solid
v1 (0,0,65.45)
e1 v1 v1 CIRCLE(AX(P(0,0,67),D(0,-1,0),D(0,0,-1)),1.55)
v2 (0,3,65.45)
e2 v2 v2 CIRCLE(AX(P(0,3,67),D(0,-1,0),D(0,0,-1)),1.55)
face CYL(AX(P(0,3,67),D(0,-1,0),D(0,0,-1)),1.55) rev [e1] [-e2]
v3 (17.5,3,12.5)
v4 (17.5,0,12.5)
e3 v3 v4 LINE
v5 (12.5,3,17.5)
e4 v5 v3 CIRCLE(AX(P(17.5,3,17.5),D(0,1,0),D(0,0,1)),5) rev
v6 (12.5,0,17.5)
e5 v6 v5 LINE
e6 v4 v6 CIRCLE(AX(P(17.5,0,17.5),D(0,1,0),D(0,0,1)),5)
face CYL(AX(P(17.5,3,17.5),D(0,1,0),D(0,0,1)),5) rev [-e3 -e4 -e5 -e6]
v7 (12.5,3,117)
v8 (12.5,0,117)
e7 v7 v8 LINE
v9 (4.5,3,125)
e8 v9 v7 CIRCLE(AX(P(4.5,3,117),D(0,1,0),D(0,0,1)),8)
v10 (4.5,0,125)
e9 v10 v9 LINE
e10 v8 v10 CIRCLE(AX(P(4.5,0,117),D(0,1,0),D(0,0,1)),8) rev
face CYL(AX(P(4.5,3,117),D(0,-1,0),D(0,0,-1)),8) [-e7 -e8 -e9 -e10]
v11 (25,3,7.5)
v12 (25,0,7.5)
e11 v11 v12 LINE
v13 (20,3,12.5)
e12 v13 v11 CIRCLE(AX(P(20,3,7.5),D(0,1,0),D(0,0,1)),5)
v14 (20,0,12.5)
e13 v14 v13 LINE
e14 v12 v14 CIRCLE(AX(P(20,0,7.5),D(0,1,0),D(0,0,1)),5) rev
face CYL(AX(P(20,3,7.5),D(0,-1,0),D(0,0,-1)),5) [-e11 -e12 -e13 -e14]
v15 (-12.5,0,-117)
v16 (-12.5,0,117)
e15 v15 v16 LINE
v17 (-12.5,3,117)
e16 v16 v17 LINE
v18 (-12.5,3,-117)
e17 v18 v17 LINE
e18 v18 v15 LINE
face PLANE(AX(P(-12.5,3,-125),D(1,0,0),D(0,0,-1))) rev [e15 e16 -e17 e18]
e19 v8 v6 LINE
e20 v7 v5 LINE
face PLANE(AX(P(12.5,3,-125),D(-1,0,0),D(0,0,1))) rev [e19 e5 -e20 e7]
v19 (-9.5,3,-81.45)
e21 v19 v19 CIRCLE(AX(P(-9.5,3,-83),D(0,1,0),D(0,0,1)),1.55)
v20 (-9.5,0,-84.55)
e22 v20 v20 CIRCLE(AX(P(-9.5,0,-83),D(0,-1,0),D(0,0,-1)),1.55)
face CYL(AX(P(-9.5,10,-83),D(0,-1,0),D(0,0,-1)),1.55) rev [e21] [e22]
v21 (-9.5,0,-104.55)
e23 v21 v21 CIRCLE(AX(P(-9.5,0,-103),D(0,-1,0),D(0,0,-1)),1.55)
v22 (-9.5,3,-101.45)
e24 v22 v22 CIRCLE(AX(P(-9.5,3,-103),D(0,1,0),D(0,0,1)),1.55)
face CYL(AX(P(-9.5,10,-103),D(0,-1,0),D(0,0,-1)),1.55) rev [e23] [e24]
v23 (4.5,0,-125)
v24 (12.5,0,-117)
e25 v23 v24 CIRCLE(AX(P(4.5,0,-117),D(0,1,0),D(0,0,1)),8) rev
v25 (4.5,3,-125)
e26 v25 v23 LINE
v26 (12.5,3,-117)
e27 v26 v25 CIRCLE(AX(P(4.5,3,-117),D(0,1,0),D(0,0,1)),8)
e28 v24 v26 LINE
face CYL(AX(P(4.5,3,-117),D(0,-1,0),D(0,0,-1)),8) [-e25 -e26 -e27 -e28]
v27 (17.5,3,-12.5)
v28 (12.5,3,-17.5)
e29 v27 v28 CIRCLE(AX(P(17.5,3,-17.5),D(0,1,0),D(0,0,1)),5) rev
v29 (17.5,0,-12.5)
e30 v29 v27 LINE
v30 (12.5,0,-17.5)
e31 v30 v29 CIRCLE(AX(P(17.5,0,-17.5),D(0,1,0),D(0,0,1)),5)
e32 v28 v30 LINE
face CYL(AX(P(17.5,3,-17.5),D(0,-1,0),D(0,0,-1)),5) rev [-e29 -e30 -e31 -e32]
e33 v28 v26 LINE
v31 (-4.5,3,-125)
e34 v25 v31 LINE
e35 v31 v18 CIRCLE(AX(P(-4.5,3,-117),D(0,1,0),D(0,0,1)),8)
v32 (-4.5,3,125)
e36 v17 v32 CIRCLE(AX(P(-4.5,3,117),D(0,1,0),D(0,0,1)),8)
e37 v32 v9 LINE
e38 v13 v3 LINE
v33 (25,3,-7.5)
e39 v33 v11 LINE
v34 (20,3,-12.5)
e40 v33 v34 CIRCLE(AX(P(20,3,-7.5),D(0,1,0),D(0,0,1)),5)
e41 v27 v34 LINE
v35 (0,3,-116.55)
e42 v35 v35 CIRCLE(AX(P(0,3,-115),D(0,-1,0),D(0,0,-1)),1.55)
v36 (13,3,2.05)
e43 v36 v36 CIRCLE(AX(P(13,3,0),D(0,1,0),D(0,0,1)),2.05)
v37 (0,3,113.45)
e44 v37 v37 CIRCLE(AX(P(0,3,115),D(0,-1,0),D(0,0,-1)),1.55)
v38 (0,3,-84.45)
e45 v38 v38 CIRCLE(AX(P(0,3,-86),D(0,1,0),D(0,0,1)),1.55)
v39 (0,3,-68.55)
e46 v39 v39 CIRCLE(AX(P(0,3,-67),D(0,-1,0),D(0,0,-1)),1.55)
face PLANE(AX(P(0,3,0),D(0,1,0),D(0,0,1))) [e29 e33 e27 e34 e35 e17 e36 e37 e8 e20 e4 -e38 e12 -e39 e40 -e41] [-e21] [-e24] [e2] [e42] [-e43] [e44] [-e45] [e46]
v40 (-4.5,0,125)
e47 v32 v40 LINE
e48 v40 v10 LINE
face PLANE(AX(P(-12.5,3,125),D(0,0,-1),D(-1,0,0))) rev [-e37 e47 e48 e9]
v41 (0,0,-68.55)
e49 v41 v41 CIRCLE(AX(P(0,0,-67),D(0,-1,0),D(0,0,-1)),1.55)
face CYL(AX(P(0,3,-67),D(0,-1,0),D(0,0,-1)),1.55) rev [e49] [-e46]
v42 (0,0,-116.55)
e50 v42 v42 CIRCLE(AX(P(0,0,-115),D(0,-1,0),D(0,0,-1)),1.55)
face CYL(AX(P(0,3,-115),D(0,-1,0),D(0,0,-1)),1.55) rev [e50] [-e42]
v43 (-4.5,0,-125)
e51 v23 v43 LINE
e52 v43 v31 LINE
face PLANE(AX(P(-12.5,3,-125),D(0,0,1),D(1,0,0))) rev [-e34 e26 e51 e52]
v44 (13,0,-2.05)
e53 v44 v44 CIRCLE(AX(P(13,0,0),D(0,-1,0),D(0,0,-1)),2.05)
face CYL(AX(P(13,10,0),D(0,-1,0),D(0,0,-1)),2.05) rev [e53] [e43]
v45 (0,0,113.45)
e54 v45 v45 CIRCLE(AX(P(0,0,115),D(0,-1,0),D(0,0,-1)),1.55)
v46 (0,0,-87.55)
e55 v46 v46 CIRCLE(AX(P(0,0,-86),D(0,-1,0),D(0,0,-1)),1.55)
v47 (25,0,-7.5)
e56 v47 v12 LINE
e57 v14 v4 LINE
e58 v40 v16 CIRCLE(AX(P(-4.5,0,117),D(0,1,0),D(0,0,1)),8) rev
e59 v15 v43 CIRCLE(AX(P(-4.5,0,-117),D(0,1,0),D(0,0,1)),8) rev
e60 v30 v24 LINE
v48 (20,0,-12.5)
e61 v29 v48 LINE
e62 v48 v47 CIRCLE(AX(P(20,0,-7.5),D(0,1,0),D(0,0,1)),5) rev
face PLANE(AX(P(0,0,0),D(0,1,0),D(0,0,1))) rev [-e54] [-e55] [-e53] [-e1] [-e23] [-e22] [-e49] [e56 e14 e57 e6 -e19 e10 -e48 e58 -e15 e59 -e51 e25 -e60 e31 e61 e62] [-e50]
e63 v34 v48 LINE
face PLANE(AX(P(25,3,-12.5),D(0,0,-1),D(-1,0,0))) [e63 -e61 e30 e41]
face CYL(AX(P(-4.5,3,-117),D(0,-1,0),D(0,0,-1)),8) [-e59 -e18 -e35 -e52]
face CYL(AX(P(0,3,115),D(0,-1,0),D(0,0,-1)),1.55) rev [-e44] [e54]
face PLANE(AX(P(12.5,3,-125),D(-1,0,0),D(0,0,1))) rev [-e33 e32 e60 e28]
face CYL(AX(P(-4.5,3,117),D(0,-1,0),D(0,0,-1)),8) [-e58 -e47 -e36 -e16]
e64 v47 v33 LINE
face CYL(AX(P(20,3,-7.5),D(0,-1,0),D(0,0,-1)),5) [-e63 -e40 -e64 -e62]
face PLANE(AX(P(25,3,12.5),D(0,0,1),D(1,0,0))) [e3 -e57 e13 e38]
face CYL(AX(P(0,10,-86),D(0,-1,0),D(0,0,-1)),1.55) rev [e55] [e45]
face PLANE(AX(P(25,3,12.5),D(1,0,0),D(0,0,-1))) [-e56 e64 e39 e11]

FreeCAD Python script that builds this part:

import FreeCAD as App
import Part
import Sketcher
from FreeCAD import Vector
Q = App.Units.Quantity


def edges_at(feature, points):
    """Names of the edges that pass closest to the given points."""
    edges = feature.Shape.Edges
    near = lambda p: min(range(len(edges)), key=lambda i: edges[i].distToShape(Part.Vertex(*p))[0])
    return sorted({f"Edge{near(p) + 1}" for p in points})


def add_polygon(sketch, points):
    """Adds a closed chain of lines whose ends are joined by coincident constraints."""
    first, n = sketch.GeometryCount, len(points)
    for a, b in zip(points, points[1:] + points[:1]):
        sketch.addGeometry(Part.LineSegment(App.Vector(*a, 0), App.Vector(*b, 0)), False)
    for i in range(n):
        sketch.addConstraint(Sketcher.Constraint("Coincident", first + i, 2, first + (i + 1) % n, 1))

doc = App.newDocument("Part")
body = doc.addObject("PartDesign::Body", "Body")

# Sketch on XZ plane
sketch1 = body.newObject("Sketcher::SketchObject", "Sketch")
sketch1.AttachmentSupport = (doc.getObject("XZ_Plane"), [""])
sketch1.MapMode = "FlatFace"
add_polygon(sketch1, [(-12, -125), (-12, 125), (12, 125), (12, -125)])  # lines 0-3
sketch1.addConstraint([
    Sketcher.Constraint("Vertical", 0),
    Sketcher.Constraint("Horizontal", 1),
    Sketcher.Constraint("Vertical", 2),
    Sketcher.Constraint("Horizontal", 3),
    Sketcher.Constraint("Symmetric", 0, 2, 2, 2, -1, 1),
    Sketcher.Constraint("DistanceX", 1, 1, 1, 2, Q("25 mm")),
    Sketcher.Constraint("DistanceY", 0, 1, 0, 2, Q("250 mm")),
])
pad1 = body.newObject("PartDesign::Pad", "Pad")
pad1.Profile = sketch1
pad1.Length = 3
pad1.Reversed = True

# Sketch on XZ plane
sketch2 = body.newObject("Sketcher::SketchObject", "Sketch001")
sketch2.AttachmentSupport = (doc.getObject("XZ_Plane"), [""])
sketch2.MapMode = "FlatFace"
sketch2.addGeometry([
    Part.Circle(Vector(0, -115, 0), Vector(0, 0, 1), 1.6),
    Part.Circle(Vector(0, -67, 0), Vector(0, 0, 1), 1.6),
    Part.Circle(Vector(0, 67, 0), Vector(0, 0, 1), 1.6),
    Part.Circle(Vector(0, 115, 0), Vector(0, 0, 1), 1.6),
], False)
sketch2.addConstraint([
    Sketcher.Constraint("Equal", 0, 1),
    Sketcher.Constraint("Equal", 1, 2),
    Sketcher.Constraint("Equal", 2, 3),
    Sketcher.Constraint("Symmetric", 1, 3, 2, 3, -1, 1),
    Sketcher.Constraint("Symmetric", 0, 3, 3, 3, -1, 1),
    Sketcher.Constraint("PointOnObject", 0, 3, -2),
    Sketcher.Constraint("PointOnObject", 1, 3, -2),
    Sketcher.Constraint("Diameter", 0, Q("3.1 mm")),
    Sketcher.Constraint("DistanceY", 0, 3, -1, 1, Q("115 mm")),
    Sketcher.Constraint("DistanceY", 1, 3, -1, 1, Q("67 mm")),
])
pocket1 = body.newObject("PartDesign::Pocket", "Pocket")
pocket1.Profile = sketch2
pocket1.Length = 3

# Sketch on XZ plane
sketch3 = body.newObject("Sketcher::SketchObject", "Sketch002")
sketch3.AttachmentSupport = (doc.getObject("XZ_Plane"), [""])
sketch3.MapMode = "FlatFace"
sketch3.addGeometry([
    Part.Circle(Vector(-9.5, -83, 0), Vector(0, 0, 1), 1.6),
    Part.Circle(Vector(-9.5, -103, 0), Vector(0, 0, 1), 1.6),
], False)
sketch3.addConstraint([
    Sketcher.Constraint("Equal", 0, 1),
    Sketcher.Constraint("Vertical", 0, 3, 1, 3),
    Sketcher.Constraint("Diameter", 0, Q("3.1 mm")),
    Sketcher.Constraint("DistanceY", 0, 3, -1, 1, Q("83 mm")),
    Sketcher.Constraint("DistanceY", 1, 3, -1, 1, Q("103 mm")),
    Sketcher.Constraint("DistanceX", 0, 3, -1, 1, Q("9.5 mm")),
])
pocket2 = body.newObject("PartDesign::Pocket", "Pocket001")
pocket2.Profile = sketch3
pocket2.Length = 10

# Sketch on XZ plane
sketch4 = body.newObject("Sketcher::SketchObject", "Sketch003")
sketch4.AttachmentSupport = (doc.getObject("XZ_Plane"), [""])
sketch4.MapMode = "FlatFace"
add_polygon(sketch4, [(25, -12), (25, 12), (0, 12), (0, -12)])  # lines 0-3
sketch4.addConstraint([
    Sketcher.Constraint("Vertical", 0),
    Sketcher.Constraint("Horizontal", 1),
    Sketcher.Constraint("Vertical", 2),
    Sketcher.Constraint("Horizontal", 3),
    Sketcher.Constraint("Symmetric", 1, 2, 2, 2, -1, 1),
    Sketcher.Constraint("Equal", 3, 0),
    Sketcher.Constraint("DistanceX", 1, 2, 1, 1, Q("25 mm")),
])
pad2 = body.newObject("PartDesign::Pad", "Pad001")
pad2.Profile = sketch4
pad2.Type = "UpToLast"
pad2.Reversed = True

# Sketch on XZ plane
sketch5 = body.newObject("Sketcher::SketchObject", "Sketch004")
sketch5.AttachmentSupport = (doc.getObject("XZ_Plane"), [""])
sketch5.MapMode = "FlatFace"
sketch5.addGeometry(Part.Circle(Vector(13, 0, 0), Vector(0, 0, 1), 2), False)
sketch5.addConstraint([
    Sketcher.Constraint("PointOnObject", 0, 3, -1),
    Sketcher.Constraint("Diameter", 0, Q("4.1 mm")),
    Sketcher.Constraint("DistanceX", -1, 1, 0, 3, Q("13 mm")),
])
pocket3 = body.newObject("PartDesign::Pocket", "Pocket002")
pocket3.Profile = sketch5
pocket3.Length = 10

# Sketch on XZ plane
sketch6 = body.newObject("Sketcher::SketchObject", "Sketch005")
sketch6.AttachmentSupport = (doc.getObject("XZ_Plane"), [""])
sketch6.MapMode = "FlatFace"
sketch6.addGeometry(Part.Circle(Vector(0, -86, 0), Vector(0, 0, 1), 1.6), False)
sketch6.addConstraint([
    Sketcher.Constraint("PointOnObject", 0, 3, -2),
    Sketcher.Constraint("Diameter", 0, Q("3.1 mm")),
    Sketcher.Constraint("DistanceY", 0, 3, -1, 1, Q("86 mm")),
])
pocket4 = body.newObject("PartDesign::Pocket", "Pocket003")
pocket4.Profile = sketch6
pocket4.Length = 10
doc.recompute()

fillet = body.newObject("PartDesign::Fillet", "Fillet")
fillet.Base = (pocket4, edges_at(pocket4, [
    (25, 1.5, -12.5),
    (12.5, 1.5, 12.5),
    (25, 1.5, 12.5),
    (12.5, 1.5, -12.5),
]))
fillet.Radius = 5
doc.recompute()

fillet2 = body.newObject("PartDesign::Fillet", "Fillet001")
fillet2.Base = (fillet, edges_at(fillet, [
    (12.5, 1.5, 125),
    (-12.5, 1.5, 125),
    (-12.5, 1.5, -125),
    (12.5, 1.5, -125),
]))
fillet2.Radius = 8

doc.recompute()
